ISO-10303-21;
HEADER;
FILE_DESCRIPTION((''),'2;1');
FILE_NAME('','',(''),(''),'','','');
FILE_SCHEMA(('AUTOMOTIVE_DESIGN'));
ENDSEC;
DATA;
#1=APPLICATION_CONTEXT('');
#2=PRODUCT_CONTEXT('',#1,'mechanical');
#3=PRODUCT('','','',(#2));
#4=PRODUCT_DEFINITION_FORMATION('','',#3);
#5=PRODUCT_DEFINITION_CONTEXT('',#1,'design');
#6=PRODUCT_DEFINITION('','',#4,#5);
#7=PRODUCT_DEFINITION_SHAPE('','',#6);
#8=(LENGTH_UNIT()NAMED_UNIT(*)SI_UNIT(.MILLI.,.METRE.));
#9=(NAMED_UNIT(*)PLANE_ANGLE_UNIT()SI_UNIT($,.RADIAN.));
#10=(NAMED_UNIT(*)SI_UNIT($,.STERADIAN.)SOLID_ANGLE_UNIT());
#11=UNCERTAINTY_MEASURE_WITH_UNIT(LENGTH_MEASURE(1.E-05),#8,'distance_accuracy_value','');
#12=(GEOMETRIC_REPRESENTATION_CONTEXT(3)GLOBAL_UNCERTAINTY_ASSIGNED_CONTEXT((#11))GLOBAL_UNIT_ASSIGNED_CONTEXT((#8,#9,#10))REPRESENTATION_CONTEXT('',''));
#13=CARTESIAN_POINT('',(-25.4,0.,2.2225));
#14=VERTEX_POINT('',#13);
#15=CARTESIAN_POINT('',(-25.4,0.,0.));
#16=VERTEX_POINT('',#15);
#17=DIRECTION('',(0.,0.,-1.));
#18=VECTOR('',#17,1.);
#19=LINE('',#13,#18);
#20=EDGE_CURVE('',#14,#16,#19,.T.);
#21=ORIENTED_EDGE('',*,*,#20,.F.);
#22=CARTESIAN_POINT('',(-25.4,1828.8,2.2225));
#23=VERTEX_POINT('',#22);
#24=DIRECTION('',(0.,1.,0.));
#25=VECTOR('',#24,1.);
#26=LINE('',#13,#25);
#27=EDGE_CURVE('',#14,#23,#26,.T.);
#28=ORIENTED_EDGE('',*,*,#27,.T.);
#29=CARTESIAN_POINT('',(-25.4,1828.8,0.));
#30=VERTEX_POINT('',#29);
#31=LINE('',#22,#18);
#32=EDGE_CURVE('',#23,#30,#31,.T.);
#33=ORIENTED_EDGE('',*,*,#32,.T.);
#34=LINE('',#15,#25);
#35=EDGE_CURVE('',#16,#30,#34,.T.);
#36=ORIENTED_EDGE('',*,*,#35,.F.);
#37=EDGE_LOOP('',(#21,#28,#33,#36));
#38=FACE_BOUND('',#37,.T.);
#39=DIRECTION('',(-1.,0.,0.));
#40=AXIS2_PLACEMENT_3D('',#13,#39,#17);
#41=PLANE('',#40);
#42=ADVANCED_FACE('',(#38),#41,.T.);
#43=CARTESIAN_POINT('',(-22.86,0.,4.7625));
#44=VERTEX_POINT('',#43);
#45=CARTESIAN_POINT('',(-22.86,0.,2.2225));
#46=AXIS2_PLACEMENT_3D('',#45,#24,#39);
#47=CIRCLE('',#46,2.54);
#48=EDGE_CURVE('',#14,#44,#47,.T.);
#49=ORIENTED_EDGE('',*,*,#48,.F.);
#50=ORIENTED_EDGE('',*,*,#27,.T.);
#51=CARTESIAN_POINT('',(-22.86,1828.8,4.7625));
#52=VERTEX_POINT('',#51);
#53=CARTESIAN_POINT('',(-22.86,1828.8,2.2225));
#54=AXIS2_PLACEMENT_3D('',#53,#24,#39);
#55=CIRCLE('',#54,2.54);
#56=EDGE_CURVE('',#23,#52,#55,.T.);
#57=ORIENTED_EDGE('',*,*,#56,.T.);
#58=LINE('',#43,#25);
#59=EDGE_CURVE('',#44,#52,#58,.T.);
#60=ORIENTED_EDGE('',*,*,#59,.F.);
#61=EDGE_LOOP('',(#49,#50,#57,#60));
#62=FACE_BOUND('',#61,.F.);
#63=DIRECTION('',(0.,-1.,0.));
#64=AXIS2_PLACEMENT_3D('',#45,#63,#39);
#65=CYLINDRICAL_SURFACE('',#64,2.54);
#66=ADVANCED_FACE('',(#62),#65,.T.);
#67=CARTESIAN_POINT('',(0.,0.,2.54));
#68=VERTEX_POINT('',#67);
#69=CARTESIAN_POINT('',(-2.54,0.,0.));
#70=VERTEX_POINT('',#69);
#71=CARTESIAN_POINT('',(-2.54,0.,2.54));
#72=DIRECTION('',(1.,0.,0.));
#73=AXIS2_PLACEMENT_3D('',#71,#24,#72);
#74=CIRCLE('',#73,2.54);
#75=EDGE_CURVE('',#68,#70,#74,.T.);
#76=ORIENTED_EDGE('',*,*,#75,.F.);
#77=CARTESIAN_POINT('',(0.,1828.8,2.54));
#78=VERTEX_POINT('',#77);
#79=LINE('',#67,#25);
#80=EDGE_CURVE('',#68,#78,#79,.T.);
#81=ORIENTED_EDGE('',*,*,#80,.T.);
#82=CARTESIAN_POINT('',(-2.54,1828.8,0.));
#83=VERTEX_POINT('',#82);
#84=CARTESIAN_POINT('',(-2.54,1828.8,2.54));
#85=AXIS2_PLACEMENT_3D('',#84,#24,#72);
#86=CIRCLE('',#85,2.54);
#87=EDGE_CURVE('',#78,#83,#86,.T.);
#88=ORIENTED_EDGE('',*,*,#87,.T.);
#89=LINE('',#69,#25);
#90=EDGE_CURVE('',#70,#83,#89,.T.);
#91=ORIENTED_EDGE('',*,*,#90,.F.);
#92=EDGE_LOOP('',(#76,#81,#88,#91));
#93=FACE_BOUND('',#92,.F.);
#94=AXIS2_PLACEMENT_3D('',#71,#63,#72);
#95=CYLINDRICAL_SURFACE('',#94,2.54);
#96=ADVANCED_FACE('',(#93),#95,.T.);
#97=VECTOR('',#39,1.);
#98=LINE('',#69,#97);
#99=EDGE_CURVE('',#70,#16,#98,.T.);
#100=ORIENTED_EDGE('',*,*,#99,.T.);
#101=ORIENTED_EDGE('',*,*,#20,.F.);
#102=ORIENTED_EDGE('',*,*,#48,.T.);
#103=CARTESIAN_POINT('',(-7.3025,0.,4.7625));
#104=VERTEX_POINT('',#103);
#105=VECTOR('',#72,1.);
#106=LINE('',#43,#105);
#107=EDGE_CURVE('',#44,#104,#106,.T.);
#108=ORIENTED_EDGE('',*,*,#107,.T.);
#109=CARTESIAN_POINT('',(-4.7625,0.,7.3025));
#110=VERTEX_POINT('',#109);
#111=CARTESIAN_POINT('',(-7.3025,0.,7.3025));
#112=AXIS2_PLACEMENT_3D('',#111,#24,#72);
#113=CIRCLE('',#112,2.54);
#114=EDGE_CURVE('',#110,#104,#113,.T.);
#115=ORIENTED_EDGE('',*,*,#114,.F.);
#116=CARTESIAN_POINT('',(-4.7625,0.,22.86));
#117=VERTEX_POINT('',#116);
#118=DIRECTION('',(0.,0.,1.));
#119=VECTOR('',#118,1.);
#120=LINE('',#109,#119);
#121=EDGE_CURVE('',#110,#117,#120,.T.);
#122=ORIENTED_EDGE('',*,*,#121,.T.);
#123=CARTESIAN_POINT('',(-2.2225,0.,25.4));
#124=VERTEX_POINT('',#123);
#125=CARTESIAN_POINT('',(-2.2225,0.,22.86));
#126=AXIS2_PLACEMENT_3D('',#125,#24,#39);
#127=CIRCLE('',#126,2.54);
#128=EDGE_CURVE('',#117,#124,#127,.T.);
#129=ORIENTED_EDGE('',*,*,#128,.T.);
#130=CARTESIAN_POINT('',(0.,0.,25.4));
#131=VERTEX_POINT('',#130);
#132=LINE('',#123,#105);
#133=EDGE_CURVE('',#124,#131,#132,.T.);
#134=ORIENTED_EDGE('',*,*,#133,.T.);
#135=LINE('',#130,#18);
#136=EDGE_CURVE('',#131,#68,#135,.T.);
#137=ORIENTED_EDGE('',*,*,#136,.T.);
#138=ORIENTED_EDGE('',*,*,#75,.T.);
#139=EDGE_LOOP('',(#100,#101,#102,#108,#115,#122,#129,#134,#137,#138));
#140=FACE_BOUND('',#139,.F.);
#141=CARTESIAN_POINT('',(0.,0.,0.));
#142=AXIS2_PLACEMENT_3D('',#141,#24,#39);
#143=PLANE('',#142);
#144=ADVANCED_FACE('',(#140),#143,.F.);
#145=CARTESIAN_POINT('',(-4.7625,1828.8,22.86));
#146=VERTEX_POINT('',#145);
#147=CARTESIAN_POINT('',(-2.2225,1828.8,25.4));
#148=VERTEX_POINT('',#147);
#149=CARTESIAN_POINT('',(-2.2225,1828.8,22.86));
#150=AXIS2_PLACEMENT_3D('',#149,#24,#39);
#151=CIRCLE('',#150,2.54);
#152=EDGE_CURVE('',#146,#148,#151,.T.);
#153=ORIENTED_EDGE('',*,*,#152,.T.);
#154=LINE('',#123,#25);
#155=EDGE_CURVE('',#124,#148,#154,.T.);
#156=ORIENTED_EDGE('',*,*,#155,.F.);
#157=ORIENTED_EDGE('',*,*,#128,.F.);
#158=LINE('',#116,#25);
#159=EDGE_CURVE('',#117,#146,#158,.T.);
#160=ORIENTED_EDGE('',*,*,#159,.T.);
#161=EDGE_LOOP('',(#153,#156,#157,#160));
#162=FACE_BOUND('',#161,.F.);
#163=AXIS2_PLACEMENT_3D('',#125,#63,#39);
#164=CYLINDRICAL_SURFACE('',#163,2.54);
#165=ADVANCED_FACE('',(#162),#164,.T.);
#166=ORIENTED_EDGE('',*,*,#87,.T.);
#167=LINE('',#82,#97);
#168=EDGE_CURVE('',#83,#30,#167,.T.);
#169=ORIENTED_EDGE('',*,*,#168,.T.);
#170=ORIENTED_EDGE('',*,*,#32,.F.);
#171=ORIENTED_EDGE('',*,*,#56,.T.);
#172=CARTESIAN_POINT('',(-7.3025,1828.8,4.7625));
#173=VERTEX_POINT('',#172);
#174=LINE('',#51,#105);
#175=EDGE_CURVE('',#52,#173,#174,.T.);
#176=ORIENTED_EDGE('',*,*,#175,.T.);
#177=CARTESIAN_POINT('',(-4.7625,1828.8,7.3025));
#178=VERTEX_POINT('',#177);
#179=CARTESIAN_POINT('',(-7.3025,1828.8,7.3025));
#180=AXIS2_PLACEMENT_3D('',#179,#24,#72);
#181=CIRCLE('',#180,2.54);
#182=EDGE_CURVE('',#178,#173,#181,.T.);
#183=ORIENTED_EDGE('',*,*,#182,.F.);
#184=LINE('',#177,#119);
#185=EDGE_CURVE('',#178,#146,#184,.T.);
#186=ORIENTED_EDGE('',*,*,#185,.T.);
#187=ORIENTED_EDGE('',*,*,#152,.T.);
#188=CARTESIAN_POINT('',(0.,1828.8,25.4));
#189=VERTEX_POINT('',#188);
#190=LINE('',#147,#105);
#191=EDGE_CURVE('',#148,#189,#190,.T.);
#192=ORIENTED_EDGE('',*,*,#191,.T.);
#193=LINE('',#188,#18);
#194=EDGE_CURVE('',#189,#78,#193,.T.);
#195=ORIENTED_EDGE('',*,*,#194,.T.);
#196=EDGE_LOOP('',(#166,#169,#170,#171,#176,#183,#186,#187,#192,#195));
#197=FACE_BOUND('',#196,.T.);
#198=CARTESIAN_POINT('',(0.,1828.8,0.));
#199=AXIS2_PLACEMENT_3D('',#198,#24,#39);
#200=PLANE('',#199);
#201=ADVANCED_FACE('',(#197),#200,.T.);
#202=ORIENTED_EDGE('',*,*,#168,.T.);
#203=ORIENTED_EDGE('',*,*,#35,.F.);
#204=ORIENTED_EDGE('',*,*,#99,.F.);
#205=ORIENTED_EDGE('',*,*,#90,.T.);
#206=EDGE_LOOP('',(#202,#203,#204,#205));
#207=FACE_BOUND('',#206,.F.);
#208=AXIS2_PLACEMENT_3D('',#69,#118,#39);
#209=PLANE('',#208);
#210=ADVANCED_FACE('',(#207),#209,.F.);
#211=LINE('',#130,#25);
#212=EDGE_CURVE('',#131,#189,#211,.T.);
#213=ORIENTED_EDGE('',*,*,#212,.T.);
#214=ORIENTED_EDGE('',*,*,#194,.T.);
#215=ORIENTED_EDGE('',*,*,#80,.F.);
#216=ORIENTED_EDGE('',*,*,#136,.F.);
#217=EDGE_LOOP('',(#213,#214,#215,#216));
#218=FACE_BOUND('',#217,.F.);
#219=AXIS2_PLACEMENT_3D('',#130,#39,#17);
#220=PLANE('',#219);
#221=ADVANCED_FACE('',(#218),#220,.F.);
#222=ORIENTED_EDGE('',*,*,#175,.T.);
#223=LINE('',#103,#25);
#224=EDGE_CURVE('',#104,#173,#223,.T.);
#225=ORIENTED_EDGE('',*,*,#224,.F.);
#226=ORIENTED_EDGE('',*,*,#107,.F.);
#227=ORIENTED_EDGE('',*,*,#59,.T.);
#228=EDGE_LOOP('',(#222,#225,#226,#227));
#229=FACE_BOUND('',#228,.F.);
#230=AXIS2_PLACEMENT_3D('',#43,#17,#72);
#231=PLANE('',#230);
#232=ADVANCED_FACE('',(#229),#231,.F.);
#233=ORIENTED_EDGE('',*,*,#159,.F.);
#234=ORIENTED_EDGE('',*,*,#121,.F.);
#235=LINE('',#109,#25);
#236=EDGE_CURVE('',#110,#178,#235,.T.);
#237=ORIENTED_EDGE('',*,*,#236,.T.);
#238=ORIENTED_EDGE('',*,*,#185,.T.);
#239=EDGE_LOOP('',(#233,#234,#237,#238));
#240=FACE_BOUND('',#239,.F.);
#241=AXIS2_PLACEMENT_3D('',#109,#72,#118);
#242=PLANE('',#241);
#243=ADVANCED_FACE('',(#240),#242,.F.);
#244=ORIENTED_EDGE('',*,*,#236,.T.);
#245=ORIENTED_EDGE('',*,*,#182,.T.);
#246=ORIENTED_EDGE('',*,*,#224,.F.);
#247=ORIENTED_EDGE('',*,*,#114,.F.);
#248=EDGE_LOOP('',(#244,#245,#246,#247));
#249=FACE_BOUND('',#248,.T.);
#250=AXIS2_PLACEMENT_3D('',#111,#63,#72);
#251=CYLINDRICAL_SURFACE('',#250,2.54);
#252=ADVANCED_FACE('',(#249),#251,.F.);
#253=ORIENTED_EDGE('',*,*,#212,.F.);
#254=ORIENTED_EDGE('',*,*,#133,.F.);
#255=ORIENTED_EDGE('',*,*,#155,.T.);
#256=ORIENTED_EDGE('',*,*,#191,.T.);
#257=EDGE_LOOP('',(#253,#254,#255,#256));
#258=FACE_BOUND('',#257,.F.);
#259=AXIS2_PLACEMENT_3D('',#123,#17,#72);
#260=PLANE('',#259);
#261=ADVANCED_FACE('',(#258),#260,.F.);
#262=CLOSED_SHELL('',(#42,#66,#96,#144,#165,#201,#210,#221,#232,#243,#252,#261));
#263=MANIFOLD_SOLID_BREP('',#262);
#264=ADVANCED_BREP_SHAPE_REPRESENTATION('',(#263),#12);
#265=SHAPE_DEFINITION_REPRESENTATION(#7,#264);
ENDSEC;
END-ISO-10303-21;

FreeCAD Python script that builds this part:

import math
import FreeCAD as App
import Part
import Sketcher
Q = App.Units.Quantity

doc = App.newDocument("Part")
body = doc.addObject("PartDesign::Body", "Body")

sketch1 = body.newObject("Sketcher::SketchObject", "Sketch")
sketch1.AttachmentSupport = (doc.getObject("XZ_Plane"), [""])
sketch1.MapMode = "FlatFace"
sketch1.addGeometry(Part.ArcOfCircle(Part.Circle(App.Vector(-2.5, 2.5, 0), App.Vector(0, 0, 1), 2.5), math.radians(-90), math.radians(0)), False)
sketch1.addGeometry(Part.LineSegment(App.Vector(-2.5, 0, 0), App.Vector(-25.4, 0, 0)), False)
sketch1.addGeometry(Part.LineSegment(App.Vector(-25.4, 0, 0), App.Vector(-25.4, 2.2, 0)), False)
sketch1.addGeometry(Part.ArcOfCircle(Part.Circle(App.Vector(-22.9, 2.2, 0), App.Vector(0, 0, 1), 2.5), math.radians(90), math.radians(180)), False)
sketch1.addGeometry(Part.LineSegment(App.Vector(-22.9, 4.8, 0), App.Vector(-7.3, 4.8, 0)), False)
sketch1.addGeometry(Part.ArcOfCircle(Part.Circle(App.Vector(-7.3, 7.3, 0), App.Vector(0, 0, 1), 2.5), math.radians(-90), math.radians(0)), False)
sketch1.addGeometry(Part.LineSegment(App.Vector(-4.8, 7.3, 0), App.Vector(-4.8, 22.9, 0)), False)
sketch1.addGeometry(Part.ArcOfCircle(Part.Circle(App.Vector(-2.2, 22.9, 0), App.Vector(0, 0, 1), 2.5), math.radians(90), math.radians(180)), False)
sketch1.addGeometry(Part.LineSegment(App.Vector(-2.2, 25.4, 0), App.Vector(0, 25.4, 0)), False)
sketch1.addGeometry(Part.LineSegment(App.Vector(0, 25.4, 0), App.Vector(0, 2.5, 0)), False)
sketch1.addConstraint(Sketcher.Constraint("Tangent", 0, 1, 1, 1))
sketch1.addConstraint(Sketcher.Constraint("Coincident", 1, 2, 2, 1))
sketch1.addConstraint(Sketcher.Constraint("Tangent", 2, 2, 3, 2))
sketch1.addConstraint(Sketcher.Constraint("Tangent", 3, 1, 4, 1))
sketch1.addConstraint(Sketcher.Constraint("Tangent", 4, 2, 5, 1))
sketch1.addConstraint(Sketcher.Constraint("Tangent", 5, 2, 6, 1))
sketch1.addConstraint(Sketcher.Constraint("Tangent", 6, 2, 7, 2))
sketch1.addConstraint(Sketcher.Constraint("Tangent", 7, 1, 8, 1))
sketch1.addConstraint(Sketcher.Constraint("Coincident", 8, 2, 9, 1))
sketch1.addConstraint(Sketcher.Constraint("Tangent", 9, 2, 0, 2))
sketch1.addConstraint(Sketcher.Constraint("Horizontal", 1))
sketch1.addConstraint(Sketcher.Constraint("Vertical", 2))
sketch1.addConstraint(Sketcher.Constraint("Horizontal", 4))
sketch1.addConstraint(Sketcher.Constraint("Vertical", 6))
sketch1.addConstraint(Sketcher.Constraint("Horizontal", 8))
sketch1.addConstraint(Sketcher.Constraint("Vertical", 9))
sketch1.addConstraint(Sketcher.Constraint("Equal", 0, 3))
sketch1.addConstraint(Sketcher.Constraint("Equal", 3, 5))
sketch1.addConstraint(Sketcher.Constraint("Equal", 5, 7))
sketch1.addConstraint(Sketcher.Constraint("PointOnObject", 0, 1, -1))
sketch1.addConstraint(Sketcher.Constraint("PointOnObject", 8, 2, -2))
sketch1.addConstraint(Sketcher.Constraint("Equal", 8, 2))
sketch1.addConstraint(Sketcher.Constraint("Equal", 4, 6))
sketch1.addConstraint(Sketcher.Constraint("Radius", 0, Q("0.1 in")))
sketch1.addConstraint(Sketcher.Constraint("DistanceX", 1, 2, -1, 1, Q("1 in")))
sketch1.addConstraint(Sketcher.Constraint("DistanceY", -1, 1, 3, 1, Q("0.1875 in")))
pad1 = body.newObject("PartDesign::Pad", "Pad")
pad1.Profile = sketch1
pad1.Length = Q("72 in")
pad1.Reversed = True

doc.recompute()
